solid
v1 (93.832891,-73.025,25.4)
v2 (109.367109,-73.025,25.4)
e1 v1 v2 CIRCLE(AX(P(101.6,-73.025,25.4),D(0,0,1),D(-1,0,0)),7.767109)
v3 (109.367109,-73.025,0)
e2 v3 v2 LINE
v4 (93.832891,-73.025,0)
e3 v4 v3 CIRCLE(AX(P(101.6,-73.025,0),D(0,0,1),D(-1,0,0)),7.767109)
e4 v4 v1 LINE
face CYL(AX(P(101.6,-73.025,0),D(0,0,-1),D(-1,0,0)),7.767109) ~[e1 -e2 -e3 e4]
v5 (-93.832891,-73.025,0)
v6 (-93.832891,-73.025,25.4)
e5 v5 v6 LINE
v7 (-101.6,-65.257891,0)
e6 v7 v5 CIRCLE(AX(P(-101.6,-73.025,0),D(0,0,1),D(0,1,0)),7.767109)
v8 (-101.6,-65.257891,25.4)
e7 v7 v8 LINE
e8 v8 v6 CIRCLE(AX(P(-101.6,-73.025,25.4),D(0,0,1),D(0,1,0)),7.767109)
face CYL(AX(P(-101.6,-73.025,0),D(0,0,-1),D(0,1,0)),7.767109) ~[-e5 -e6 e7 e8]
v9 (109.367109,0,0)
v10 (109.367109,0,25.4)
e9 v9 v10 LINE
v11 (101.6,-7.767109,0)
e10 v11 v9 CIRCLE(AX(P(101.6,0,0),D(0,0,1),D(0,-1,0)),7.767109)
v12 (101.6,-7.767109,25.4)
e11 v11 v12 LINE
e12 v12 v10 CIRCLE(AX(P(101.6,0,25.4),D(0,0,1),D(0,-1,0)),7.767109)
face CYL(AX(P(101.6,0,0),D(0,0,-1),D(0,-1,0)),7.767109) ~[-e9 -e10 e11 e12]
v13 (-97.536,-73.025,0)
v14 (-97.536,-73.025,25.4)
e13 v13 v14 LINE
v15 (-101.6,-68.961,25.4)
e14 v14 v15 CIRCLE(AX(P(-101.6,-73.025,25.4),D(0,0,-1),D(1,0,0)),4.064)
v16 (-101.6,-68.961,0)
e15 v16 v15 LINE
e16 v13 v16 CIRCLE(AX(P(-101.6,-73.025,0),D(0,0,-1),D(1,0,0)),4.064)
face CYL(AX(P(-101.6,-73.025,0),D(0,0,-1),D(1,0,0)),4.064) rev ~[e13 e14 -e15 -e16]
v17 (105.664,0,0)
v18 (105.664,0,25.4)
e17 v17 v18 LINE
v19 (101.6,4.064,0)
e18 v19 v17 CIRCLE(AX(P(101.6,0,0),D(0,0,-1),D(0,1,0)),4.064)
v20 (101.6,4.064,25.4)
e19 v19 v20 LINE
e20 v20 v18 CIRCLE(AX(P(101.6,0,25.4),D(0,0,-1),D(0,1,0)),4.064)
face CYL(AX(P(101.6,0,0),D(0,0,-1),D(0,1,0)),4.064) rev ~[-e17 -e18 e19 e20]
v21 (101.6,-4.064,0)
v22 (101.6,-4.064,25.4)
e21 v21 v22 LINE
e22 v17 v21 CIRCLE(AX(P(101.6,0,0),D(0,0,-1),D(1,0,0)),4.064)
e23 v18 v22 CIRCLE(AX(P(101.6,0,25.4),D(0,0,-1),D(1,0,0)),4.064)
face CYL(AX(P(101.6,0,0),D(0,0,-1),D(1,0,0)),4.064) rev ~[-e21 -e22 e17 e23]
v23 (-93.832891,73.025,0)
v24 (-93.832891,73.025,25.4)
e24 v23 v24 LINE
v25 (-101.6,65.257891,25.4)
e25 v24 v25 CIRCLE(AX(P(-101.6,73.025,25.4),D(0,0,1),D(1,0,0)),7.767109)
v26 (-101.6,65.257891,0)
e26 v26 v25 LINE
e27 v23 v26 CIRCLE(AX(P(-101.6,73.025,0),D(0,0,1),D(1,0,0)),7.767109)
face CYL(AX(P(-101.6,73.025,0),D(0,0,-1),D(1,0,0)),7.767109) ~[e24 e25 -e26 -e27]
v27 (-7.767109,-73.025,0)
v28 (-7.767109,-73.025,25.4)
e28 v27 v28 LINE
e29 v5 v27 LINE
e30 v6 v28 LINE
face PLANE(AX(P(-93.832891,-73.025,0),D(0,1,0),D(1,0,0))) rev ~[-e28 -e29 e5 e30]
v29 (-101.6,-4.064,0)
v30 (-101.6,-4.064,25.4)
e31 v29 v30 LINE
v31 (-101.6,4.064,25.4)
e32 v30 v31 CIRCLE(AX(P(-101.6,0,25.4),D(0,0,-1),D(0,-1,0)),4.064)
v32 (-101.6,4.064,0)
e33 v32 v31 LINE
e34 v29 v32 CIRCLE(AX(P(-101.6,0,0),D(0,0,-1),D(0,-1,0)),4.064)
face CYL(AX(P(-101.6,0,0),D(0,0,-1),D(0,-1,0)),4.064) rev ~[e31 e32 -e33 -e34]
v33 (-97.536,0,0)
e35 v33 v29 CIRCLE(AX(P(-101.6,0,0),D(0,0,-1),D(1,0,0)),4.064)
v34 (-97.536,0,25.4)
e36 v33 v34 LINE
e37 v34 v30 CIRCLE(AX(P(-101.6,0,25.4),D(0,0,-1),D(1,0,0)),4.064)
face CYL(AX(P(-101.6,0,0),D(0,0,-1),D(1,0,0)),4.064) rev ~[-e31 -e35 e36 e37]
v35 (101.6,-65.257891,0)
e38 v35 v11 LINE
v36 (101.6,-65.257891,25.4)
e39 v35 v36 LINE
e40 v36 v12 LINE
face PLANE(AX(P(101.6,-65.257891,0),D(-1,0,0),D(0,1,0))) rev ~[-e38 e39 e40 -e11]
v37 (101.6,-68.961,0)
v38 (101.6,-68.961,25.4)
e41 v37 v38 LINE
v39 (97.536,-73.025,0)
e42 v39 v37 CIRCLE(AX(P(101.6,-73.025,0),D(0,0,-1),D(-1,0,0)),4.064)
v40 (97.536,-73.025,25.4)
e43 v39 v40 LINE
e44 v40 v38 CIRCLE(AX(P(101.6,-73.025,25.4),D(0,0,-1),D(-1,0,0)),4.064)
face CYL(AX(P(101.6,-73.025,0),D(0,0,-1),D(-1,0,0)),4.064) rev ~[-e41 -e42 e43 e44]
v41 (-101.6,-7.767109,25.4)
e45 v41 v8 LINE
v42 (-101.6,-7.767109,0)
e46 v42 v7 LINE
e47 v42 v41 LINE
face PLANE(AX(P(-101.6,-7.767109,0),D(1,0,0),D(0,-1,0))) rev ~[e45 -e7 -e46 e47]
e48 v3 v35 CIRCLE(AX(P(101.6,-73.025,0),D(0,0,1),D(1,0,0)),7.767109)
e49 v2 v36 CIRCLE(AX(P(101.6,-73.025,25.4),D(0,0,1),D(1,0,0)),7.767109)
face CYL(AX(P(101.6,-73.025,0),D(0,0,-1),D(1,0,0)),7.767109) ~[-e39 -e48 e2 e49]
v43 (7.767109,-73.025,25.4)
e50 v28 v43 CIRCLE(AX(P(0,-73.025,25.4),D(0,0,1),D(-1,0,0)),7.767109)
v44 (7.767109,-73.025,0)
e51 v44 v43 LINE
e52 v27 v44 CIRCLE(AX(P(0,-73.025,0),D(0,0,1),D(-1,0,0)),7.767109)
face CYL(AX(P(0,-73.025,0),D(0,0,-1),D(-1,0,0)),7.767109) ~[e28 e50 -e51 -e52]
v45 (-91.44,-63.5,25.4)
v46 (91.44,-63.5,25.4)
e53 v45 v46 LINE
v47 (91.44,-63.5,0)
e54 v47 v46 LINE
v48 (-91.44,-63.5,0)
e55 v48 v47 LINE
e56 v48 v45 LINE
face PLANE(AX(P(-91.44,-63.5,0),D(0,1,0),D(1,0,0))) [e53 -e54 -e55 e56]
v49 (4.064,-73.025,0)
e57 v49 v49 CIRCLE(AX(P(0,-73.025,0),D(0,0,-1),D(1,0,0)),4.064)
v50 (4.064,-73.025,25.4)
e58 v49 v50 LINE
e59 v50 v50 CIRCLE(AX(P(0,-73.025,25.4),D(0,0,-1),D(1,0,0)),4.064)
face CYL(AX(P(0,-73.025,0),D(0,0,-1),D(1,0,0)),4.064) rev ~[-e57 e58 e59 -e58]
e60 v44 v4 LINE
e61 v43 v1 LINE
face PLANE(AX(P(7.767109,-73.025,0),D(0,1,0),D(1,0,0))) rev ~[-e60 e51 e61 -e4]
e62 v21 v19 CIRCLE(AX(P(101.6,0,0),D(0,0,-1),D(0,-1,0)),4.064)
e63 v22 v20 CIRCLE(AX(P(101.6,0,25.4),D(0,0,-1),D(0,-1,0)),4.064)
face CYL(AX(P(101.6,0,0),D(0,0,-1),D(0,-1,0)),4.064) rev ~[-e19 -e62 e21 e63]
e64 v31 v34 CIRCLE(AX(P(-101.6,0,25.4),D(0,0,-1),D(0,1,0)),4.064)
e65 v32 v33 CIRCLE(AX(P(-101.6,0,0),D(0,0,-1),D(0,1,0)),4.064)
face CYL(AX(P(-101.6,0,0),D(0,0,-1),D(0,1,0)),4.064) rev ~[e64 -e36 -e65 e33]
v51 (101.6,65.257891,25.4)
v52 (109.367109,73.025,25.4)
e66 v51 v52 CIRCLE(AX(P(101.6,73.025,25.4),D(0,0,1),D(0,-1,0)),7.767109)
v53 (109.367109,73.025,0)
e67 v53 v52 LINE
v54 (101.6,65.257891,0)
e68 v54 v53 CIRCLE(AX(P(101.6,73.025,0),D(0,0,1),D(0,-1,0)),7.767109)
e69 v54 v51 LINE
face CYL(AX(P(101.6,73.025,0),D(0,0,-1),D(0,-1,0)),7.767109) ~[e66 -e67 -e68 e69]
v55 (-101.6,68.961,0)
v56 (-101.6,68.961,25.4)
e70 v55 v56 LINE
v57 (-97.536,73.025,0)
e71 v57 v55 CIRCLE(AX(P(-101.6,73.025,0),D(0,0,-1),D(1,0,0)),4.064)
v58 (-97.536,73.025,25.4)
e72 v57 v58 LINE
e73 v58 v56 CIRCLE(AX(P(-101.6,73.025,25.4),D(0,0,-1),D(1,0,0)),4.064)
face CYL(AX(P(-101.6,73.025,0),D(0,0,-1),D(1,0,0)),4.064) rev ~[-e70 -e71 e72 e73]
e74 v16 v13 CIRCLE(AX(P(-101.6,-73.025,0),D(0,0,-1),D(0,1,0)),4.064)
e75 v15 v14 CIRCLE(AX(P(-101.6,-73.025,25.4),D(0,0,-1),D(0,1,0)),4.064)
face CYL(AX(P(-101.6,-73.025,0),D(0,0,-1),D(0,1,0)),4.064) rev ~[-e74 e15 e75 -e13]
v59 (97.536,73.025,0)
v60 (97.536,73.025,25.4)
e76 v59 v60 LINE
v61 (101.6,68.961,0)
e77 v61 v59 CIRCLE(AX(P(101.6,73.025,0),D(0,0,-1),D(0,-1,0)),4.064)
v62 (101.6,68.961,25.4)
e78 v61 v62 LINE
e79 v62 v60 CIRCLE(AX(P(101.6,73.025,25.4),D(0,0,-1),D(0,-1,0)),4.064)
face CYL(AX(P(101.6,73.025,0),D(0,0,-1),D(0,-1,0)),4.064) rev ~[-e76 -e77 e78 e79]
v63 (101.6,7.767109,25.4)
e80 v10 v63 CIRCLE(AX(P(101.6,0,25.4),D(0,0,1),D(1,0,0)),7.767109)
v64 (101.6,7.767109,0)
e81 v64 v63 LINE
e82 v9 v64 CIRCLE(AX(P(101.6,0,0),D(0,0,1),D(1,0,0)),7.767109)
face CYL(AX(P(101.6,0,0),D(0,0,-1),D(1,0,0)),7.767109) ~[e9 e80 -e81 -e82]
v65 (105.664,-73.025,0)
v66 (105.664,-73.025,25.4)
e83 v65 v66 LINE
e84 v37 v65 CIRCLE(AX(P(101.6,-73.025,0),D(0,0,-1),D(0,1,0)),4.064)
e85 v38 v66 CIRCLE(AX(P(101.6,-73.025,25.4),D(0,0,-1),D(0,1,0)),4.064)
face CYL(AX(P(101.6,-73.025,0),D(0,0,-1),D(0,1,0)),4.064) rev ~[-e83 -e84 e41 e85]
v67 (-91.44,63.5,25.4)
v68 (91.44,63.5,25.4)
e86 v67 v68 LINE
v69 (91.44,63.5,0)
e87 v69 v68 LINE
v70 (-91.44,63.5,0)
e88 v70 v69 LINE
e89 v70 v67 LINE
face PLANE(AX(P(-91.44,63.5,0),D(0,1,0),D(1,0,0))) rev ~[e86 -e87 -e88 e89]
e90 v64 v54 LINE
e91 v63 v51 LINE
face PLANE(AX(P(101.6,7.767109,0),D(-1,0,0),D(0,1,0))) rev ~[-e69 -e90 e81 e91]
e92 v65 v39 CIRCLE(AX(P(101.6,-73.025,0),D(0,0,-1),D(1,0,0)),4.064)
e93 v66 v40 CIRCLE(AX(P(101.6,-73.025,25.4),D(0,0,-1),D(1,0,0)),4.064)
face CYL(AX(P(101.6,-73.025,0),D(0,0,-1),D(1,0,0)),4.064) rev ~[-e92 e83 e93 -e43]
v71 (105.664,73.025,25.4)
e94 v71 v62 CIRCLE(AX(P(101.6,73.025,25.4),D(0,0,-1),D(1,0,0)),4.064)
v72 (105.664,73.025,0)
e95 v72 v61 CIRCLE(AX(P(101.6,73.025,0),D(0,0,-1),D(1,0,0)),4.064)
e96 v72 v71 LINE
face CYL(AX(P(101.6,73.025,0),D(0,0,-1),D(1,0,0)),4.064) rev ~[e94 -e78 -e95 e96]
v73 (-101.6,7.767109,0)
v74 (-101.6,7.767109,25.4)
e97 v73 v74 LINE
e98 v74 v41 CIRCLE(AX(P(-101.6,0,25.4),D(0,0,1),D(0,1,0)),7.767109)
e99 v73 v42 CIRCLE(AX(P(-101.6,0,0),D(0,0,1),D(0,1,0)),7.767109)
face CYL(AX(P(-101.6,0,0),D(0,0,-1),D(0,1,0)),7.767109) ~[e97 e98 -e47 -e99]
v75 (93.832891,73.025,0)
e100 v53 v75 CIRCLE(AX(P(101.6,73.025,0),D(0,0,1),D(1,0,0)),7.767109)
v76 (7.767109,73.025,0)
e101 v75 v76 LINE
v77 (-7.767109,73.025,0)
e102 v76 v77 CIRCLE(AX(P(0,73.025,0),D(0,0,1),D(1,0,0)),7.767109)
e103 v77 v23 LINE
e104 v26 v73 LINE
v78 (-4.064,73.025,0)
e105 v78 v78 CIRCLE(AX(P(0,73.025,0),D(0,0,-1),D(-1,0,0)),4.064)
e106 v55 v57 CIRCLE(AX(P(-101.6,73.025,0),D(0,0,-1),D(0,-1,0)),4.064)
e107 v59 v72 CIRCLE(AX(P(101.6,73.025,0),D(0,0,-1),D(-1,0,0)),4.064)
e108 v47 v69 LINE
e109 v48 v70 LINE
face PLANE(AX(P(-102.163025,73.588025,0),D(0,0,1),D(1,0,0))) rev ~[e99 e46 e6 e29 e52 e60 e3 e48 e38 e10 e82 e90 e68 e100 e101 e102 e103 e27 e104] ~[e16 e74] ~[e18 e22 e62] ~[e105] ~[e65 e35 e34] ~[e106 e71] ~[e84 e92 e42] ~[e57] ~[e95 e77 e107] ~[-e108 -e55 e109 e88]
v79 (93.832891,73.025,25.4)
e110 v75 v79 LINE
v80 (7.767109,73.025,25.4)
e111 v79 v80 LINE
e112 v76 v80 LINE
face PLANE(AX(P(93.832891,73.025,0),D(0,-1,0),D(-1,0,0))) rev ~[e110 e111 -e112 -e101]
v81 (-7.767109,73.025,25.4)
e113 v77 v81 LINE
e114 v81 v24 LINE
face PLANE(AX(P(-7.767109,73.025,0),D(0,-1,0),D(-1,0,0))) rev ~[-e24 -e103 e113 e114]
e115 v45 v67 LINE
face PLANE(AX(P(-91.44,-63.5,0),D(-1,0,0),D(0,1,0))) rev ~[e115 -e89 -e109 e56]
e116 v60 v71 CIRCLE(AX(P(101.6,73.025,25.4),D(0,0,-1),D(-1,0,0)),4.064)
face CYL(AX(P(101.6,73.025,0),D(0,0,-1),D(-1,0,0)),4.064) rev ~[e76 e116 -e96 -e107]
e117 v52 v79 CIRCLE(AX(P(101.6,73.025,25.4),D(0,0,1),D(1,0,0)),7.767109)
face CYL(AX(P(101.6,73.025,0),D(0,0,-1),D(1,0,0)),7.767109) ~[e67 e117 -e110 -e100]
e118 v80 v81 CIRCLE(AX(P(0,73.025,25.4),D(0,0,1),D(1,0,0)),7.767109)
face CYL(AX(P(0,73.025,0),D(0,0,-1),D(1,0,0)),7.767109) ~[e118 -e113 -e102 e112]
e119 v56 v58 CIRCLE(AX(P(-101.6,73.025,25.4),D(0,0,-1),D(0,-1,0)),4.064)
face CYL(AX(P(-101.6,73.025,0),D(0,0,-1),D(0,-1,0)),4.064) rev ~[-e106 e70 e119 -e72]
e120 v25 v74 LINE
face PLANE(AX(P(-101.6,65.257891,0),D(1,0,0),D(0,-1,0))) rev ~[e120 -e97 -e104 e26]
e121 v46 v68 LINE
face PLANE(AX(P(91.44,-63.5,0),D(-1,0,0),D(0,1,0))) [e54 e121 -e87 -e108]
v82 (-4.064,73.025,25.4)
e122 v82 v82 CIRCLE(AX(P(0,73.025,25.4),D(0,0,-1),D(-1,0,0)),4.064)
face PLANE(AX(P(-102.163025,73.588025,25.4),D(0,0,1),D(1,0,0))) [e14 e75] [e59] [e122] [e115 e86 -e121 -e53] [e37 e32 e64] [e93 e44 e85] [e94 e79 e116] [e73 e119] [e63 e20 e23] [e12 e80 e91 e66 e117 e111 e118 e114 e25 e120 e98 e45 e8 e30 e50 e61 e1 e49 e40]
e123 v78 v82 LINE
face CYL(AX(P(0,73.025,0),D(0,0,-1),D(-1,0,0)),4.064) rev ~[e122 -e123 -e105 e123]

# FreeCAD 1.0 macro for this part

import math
import FreeCAD as App
import Part
import Sketcher
Q = App.Units.Quantity

doc = App.newDocument("Part")
body = doc.addObject("PartDesign::Body", "Body")

# Sketch on XY plane
sketch1 = doc.addObject("Sketcher::SketchObject", "Sketch")
body.addObject(sketch1)
sketch1.AttachmentSupport = (doc.XY_Plane, [""])
sketch1.MapMode = "FlatFace"
sketch1.addGeometry([
    Part.ArcOfCircle(Part.Circle(App.Vector(-101.6, 73.025, 0), App.Vector(0, 0, 1), 7.767109), math.radians(0), math.radians(270)),  # 0
    Part.LineSegment(App.Vector(-101.6, 65.257891, 0), App.Vector(-101.6, 7.767109, 0)),  # 1
    Part.ArcOfCircle(Part.Circle(App.Vector(-101.6, 0, 0), App.Vector(0, 0, 1), 7.767109), math.radians(90), math.radians(270)),  # 2
    Part.LineSegment(App.Vector(-101.6, -7.767109, 0), App.Vector(-101.6, -65.257891, 0)),  # 3
    Part.ArcOfCircle(Part.Circle(App.Vector(-101.6, -73.025, 0), App.Vector(0, 0, 1), 7.767109), math.radians(90), math.radians(360)),  # 4
    Part.LineSegment(App.Vector(-93.832891, -73.025, 0), App.Vector(-7.767109, -73.025, 0)),  # 5
    Part.ArcOfCircle(Part.Circle(App.Vector(0, -73.025, 0), App.Vector(0, 0, 1), 7.767109), math.radians(180), math.radians(360)),  # 6
    Part.LineSegment(App.Vector(7.767109, -73.025, 0), App.Vector(93.832891, -73.025, 0)),  # 7
    Part.ArcOfCircle(Part.Circle(App.Vector(101.6, -73.025, 0), App.Vector(0, 0, 1), 7.767109), math.radians(180), math.radians(360)),  # 8
    Part.ArcOfCircle(Part.Circle(App.Vector(101.6, -73.025, 0), App.Vector(0, 0, 1), 7.767109), math.radians(0), math.radians(90)),  # 9
    Part.LineSegment(App.Vector(101.6, -65.257891, 0), App.Vector(101.6, -7.767109, 0)),  # 10
    Part.ArcOfCircle(Part.Circle(App.Vector(101.6, 0, 0), App.Vector(0, 0, 1), 7.767109), math.radians(-90), math.radians(0)),  # 11
    Part.ArcOfCircle(Part.Circle(App.Vector(101.6, 0, 0), App.Vector(0, 0, 1), 7.767109), math.radians(0), math.radians(90)),  # 12
    Part.LineSegment(App.Vector(101.6, 7.767109, 0), App.Vector(101.6, 65.257891, 0)),  # 13
    Part.ArcOfCircle(Part.Circle(App.Vector(101.6, 73.025, 0), App.Vector(0, 0, 1), 7.767109), math.radians(-90), math.radians(0)),  # 14
    Part.ArcOfCircle(Part.Circle(App.Vector(101.6, 73.025, 0), App.Vector(0, 0, 1), 7.767109), math.radians(0), math.radians(180)),  # 15
    Part.LineSegment(App.Vector(93.832891, 73.025, 0), App.Vector(7.767109, 73.025, 0)),  # 16
    Part.ArcOfCircle(Part.Circle(App.Vector(0, 73.025, 0), App.Vector(0, 0, 1), 7.767109), math.radians(0), math.radians(180)),  # 17
    Part.LineSegment(App.Vector(-7.767109, 73.025, 0), App.Vector(-93.832891, 73.025, 0)),  # 18
    Part.Circle(App.Vector(0, -73.025, 0), App.Vector(0, 0, 1), 4.064),  # 19
    Part.ArcOfCircle(Part.Circle(App.Vector(-101.6, -73.025, 0), App.Vector(0, 0, 1), 4.064), math.radians(0), math.radians(90)),  # 20
    Part.ArcOfCircle(Part.Circle(App.Vector(-101.6, -73.025, 0), App.Vector(0, 0, 1), 4.064), math.radians(90), math.radians(360)),  # 21
    Part.ArcOfCircle(Part.Circle(App.Vector(-101.6, 0, 0), App.Vector(0, 0, 1), 4.064), math.radians(0), math.radians(90)),  # 22
    Part.ArcOfCircle(Part.Circle(App.Vector(-101.6, 0, 0), App.Vector(0, 0, 1), 4.064), math.radians(-90), math.radians(0)),  # 23
    Part.ArcOfCircle(Part.Circle(App.Vector(-101.6, 0, 0), App.Vector(0, 0, 1), 4.064), math.radians(90), math.radians(270)),  # 24
    Part.LineSegment(App.Vector(91.44, -63.5, 0), App.Vector(-91.44, -63.5, 0)),  # 25
    Part.LineSegment(App.Vector(-91.44, -63.5, 0), App.Vector(-91.44, 63.5, 0)),  # 26
    Part.LineSegment(App.Vector(-91.44, 63.5, 0), App.Vector(91.44, 63.5, 0)),  # 27
    Part.LineSegment(App.Vector(91.44, 63.5, 0), App.Vector(91.44, -63.5, 0)),  # 28
    Part.ArcOfCircle(Part.Circle(App.Vector(-101.6, 73.025, 0), App.Vector(0, 0, 1), 4.064), math.radians(0), math.radians(270)),  # 29
    Part.ArcOfCircle(Part.Circle(App.Vector(-101.6, 73.025, 0), App.Vector(0, 0, 1), 4.064), math.radians(-90), math.radians(0)),  # 30
    Part.Circle(App.Vector(0, 73.025, 0), App.Vector(0, 0, 1), 4.064),  # 31
    Part.ArcOfCircle(Part.Circle(App.Vector(101.6, 73.025, 0), App.Vector(0, 0, 1), 4.064), math.radians(180), math.radians(270)),  # 32
    Part.ArcOfCircle(Part.Circle(App.Vector(101.6, 73.025, 0), App.Vector(0, 0, 1), 4.064), math.radians(0), math.radians(180)),  # 33
    Part.ArcOfCircle(Part.Circle(App.Vector(101.6, 73.025, 0), App.Vector(0, 0, 1), 4.064), math.radians(-90), math.radians(0)),  # 34
    Part.ArcOfCircle(Part.Circle(App.Vector(101.6, 0, 0), App.Vector(0, 0, 1), 4.064), math.radians(90), math.radians(270)),  # 35
    Part.ArcOfCircle(Part.Circle(App.Vector(101.6, 0, 0), App.Vector(0, 0, 1), 4.064), math.radians(0), math.radians(90)),  # 36
    Part.ArcOfCircle(Part.Circle(App.Vector(101.6, 0, 0), App.Vector(0, 0, 1), 4.064), math.radians(-90), math.radians(0)),  # 37
    Part.ArcOfCircle(Part.Circle(App.Vector(101.6, -73.025, 0), App.Vector(0, 0, 1), 4.064), math.radians(90), math.radians(180)),  # 38
    Part.ArcOfCircle(Part.Circle(App.Vector(101.6, -73.025, 0), App.Vector(0, 0, 1), 4.064), math.radians(0), math.radians(90)),  # 39
    Part.ArcOfCircle(Part.Circle(App.Vector(101.6, -73.025, 0), App.Vector(0, 0, 1), 4.064), math.radians(180), math.radians(360)),  # 40
], False)
sketch1.addConstraint([
    Sketcher.Constraint("Coincident", 0, 2, 1, 1),
    Sketcher.Constraint("Coincident", 1, 2, 2, 1),
    Sketcher.Constraint("Coincident", 2, 2, 3, 1),
    Sketcher.Constraint("Coincident", 3, 2, 4, 1),
    Sketcher.Constraint("Coincident", 4, 2, 5, 1),
    Sketcher.Constraint("Coincident", 5, 2, 6, 1),
    Sketcher.Constraint("Coincident", 6, 2, 7, 1),
    Sketcher.Constraint("Coincident", 7, 2, 8, 1),
    Sketcher.Constraint("Tangent", 8, 2, 9, 1),
    Sketcher.Constraint("Coincident", 9, 2, 10, 1),
    Sketcher.Constraint("Coincident", 10, 2, 11, 1),
    Sketcher.Constraint("Tangent", 11, 2, 12, 1),
    Sketcher.Constraint("Coincident", 12, 2, 13, 1),
    Sketcher.Constraint("Coincident", 13, 2, 14, 1),
    Sketcher.Constraint("Tangent", 14, 2, 15, 1),
    Sketcher.Constraint("Coincident", 15, 2, 16, 1),
    Sketcher.Constraint("Coincident", 16, 2, 17, 1),
    Sketcher.Constraint("Coincident", 17, 2, 18, 1),
    Sketcher.Constraint("Coincident", 18, 2, 0, 1),
    Sketcher.Constraint("Tangent", 20, 1, 21, 2),
    Sketcher.Constraint("Coincident", 21, 1, 20, 2),
    Sketcher.Constraint("Tangent", 22, 1, 23, 2),
    Sketcher.Constraint("Tangent", 23, 1, 24, 2),
    Sketcher.Constraint("Tangent", 24, 1, 22, 2),
    Sketcher.Constraint("Coincident", 25, 2, 26, 1),
    Sketcher.Constraint("Coincident", 26, 2, 27, 1),
    Sketcher.Constraint("Coincident", 27, 2, 28, 1),
    Sketcher.Constraint("Coincident", 28, 2, 25, 1),
    Sketcher.Constraint("Tangent", 29, 1, 30, 2),
    Sketcher.Constraint("Coincident", 30, 1, 29, 2),
    Sketcher.Constraint("Tangent", 32, 1, 33, 2),
    Sketcher.Constraint("Tangent", 33, 1, 34, 2),
    Sketcher.Constraint("Tangent", 34, 1, 32, 2),
    Sketcher.Constraint("Tangent", 35, 1, 36, 2),
    Sketcher.Constraint("Tangent", 36, 1, 37, 2),
    Sketcher.Constraint("Tangent", 37, 1, 35, 2),
    Sketcher.Constraint("Tangent", 38, 1, 39, 2),
    Sketcher.Constraint("Tangent", 39, 1, 40, 2),
    Sketcher.Constraint("Tangent", 40, 1, 38, 2),
    Sketcher.Constraint("Vertical", 1),
    Sketcher.Constraint("Vertical", 3),
    Sketcher.Constraint("Horizontal", 5),
    Sketcher.Constraint("Horizontal", 7),
    Sketcher.Constraint("Vertical", 10),
    Sketcher.Constraint("Vertical", 13),
    Sketcher.Constraint("Horizontal", 16),
    Sketcher.Constraint("Horizontal", 18),
    Sketcher.Constraint("Horizontal", 25),
    Sketcher.Constraint("Vertical", 26),
    Sketcher.Constraint("Horizontal", 27),
    Sketcher.Constraint("Vertical", 28),
    Sketcher.Constraint("Coincident", 19, 3, 6, 3),
    Sketcher.Constraint("Coincident", 20, 3, 4, 3),
    Sketcher.Constraint("Coincident", 22, 3, 2, 3),
    Sketcher.Constraint("Coincident", 29, 3, 0, 3),
    Sketcher.Constraint("Coincident", 31, 3, 17, 3),
    Sketcher.Constraint("Coincident", 32, 3, 14, 3),
    Sketcher.Constraint("Coincident", 35, 3, 11, 3),
    Sketcher.Constraint("Coincident", 38, 3, 8, 3),
    Sketcher.Constraint("Equal", 0, 2),
    Sketcher.Constraint("Equal", 2, 4),
    Sketcher.Constraint("Equal", 4, 6),
    Sketcher.Constraint("Equal", 6, 8),
    Sketcher.Constraint("Equal", 8, 9),
    Sketcher.Constraint("Equal", 9, 11),
    Sketcher.Constraint("Equal", 11, 12),
    Sketcher.Constraint("Equal", 12, 14),
    Sketcher.Constraint("Equal", 14, 15),
    Sketcher.Constraint("Equal", 15, 17),
    Sketcher.Constraint("Equal", 19, 20),
    Sketcher.Constraint("Equal", 21, 22),
    Sketcher.Constraint("Equal", 24, 29),
    Sketcher.Constraint("Equal", 30, 31),
    Sketcher.Constraint("Equal", 31, 32),
    Sketcher.Constraint("Equal", 34, 35),
    Sketcher.Constraint("Equal", 37, 38),
    Sketcher.Constraint("Symmetric", 0, 3, 8, 3, -1, 1),
    Sketcher.Constraint("Symmetric", 2, 3, 11, 3, -1, 1),
    Sketcher.Constraint("Symmetric", 4, 3, 14, 3, -1, 1),
    Sketcher.Constraint("Symmetric", 6, 3, 17, 3, -1, 1),
    Sketcher.Constraint("Symmetric", 25, 2, 27, 2, -1, 1),
    Sketcher.Constraint("Symmetric", 4, 3, 8, 3, -2),
    Sketcher.Constraint("Symmetric", 5, 2, 6, 2, -2),
    Sketcher.Constraint("Symmetric", 2, 2, 10, 2, -2),
    Sketcher.Constraint("PointOnObject", 11, 2, -1),
    Sketcher.Constraint("PointOnObject", 22, 1, -1),
    Sketcher.Constraint("PointOnObject", 36, 1, -1),
    Sketcher.Constraint("Horizontal", 4, 3, 6, 3),
    Sketcher.Constraint("Horizontal", 40, 3, 4, 2),
    Sketcher.Constraint("Horizontal", 7, 2, 8, 2),
    Sketcher.Constraint("Horizontal", 34, 3, 14, 2),
    Sketcher.Constraint("Horizontal", 14, 2, 15, 2),
    Sketcher.Constraint("Horizontal", 16, 2, 17, 2),
    Sketcher.Constraint("Horizontal", 8, 2, 20, 1),
    Sketcher.Constraint("Horizontal", 18, 2, 29, 1),
    Sketcher.Constraint("Horizontal", 29, 1, 32, 1),
    Sketcher.Constraint("Horizontal", 32, 1, 33, 1),
    Sketcher.Constraint("Horizontal", 20, 1, 39, 1),
    Sketcher.Constraint("Horizontal", 39, 1, 40, 1),
    Sketcher.Constraint("Vertical", 0, 3, 2, 3),
    Sketcher.Constraint("Vertical", 30, 3, 0, 2),
    Sketcher.Constraint("Vertical", 1, 2, 2, 2),
    Sketcher.Constraint("Vertical", 10, 2, 12, 2),
    Sketcher.Constraint("Vertical", 3, 2, 21, 1),
    Sketcher.Constraint("Vertical", 21, 1, 23, 1),
    Sketcher.Constraint("Vertical", 23, 1, 24, 1),
    Sketcher.Constraint("Vertical", 24, 1, 30, 1),
    Sketcher.Constraint("Vertical", 13, 2, 34, 1),
    Sketcher.Constraint("Vertical", 34, 1, 35, 1),
    Sketcher.Constraint("Vertical", 35, 1, 37, 1),
    Sketcher.Constraint("Vertical", 37, 1, 38, 1),
    Sketcher.Constraint("Diameter", 19, Q("0.32 in")),
    Sketcher.Constraint("DistanceY", 26, 1, 26, 2, Q("5 in")),
    Sketcher.Constraint("DistanceX", 25, 2, 25, 1, Q("7.2 in")),
    Sketcher.Constraint("DistanceX", 0, 3, -1, 1, Q("4 in")),
    Sketcher.Constraint("DistanceY", -1, 1, 0, 3, Q("2.875 in")),
    Sketcher.Constraint("Radius", 0, 7.767109),
])
pad1 = doc.addObject("PartDesign::Pad", "Pad")
body.addObject(pad1)
pad1.Profile = sketch1
pad1.Length = Q("1 in")

doc.recompute()
